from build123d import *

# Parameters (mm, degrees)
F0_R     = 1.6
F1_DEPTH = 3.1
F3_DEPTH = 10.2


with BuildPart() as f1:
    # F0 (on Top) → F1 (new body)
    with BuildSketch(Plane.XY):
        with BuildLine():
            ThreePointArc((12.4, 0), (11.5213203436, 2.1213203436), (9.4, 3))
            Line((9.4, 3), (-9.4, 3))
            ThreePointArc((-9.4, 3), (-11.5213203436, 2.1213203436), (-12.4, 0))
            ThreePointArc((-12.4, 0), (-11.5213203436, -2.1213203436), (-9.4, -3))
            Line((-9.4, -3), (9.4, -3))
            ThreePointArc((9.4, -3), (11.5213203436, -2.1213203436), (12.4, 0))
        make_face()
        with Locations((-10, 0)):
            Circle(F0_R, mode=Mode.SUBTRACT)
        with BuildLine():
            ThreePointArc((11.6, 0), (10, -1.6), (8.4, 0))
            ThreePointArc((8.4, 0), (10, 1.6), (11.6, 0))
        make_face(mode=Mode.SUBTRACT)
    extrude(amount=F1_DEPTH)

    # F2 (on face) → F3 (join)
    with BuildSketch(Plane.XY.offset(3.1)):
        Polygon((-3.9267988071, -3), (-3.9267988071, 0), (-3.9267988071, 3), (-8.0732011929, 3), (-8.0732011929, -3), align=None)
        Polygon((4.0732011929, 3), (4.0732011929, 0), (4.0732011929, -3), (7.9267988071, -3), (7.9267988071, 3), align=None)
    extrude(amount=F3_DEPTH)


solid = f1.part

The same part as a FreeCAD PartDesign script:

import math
import FreeCAD as App
import Part
import Sketcher

V = App.Vector
Q = App.Units.Quantity

doc = App.newDocument("Part")
body = doc.addObject("PartDesign::Body", "Body")

sketch1 = body.newObject("Sketcher::SketchObject", "Sketch")
sketch1.AttachmentSupport = (doc.getObject("XY_Plane"), [""])
sketch1.MapMode = "FlatFace"
sketch1.addGeometry([
    Part.ArcOfCircle(Part.Circle(V(9.4, 0, 0), V(0, 0, 1), 3), math.radians(0), math.radians(90)),
    Part.LineSegment(V(9.4, 3, 0), V(-9.4, 3, 0)),
    Part.ArcOfCircle(Part.Circle(V(-9.4, 0, 0), V(0, 0, 1), 3), math.radians(90), math.radians(180)),
    Part.ArcOfCircle(Part.Circle(V(-9.4, 0, 0), V(0, 0, 1), 3), math.radians(180), math.radians(270)),
    Part.LineSegment(V(-9.4, -3, 0), V(9.4, -3, 0)),
    Part.ArcOfCircle(Part.Circle(V(9.4, 0, 0), V(0, 0, 1), 3), math.radians(-90), math.radians(0)),
    Part.Circle(V(10, 0, 0), V(0, 0, 1), 1.6),
    Part.Circle(V(-10, 0, 0), V(0, 0, 1), 1.6),
], False)
sketch1.addConstraint([
    Sketcher.Constraint("Tangent", 0, 2, 1, 1),
    Sketcher.Constraint("Tangent", 1, 2, 2, 1),
    Sketcher.Constraint("Tangent", 2, 2, 3, 1),
    Sketcher.Constraint("Tangent", 3, 2, 4, 1),
    Sketcher.Constraint("Tangent", 4, 2, 5, 1),
    Sketcher.Constraint("Tangent", 5, 2, 0, 1),
    Sketcher.Constraint("Horizontal", 1),
    Sketcher.Constraint("Horizontal", 4),
    Sketcher.Constraint("Equal", 0, 2),
    Sketcher.Constraint("Equal", 2, 3),
    Sketcher.Constraint("Equal", 6, 7),
    Sketcher.Constraint("Symmetric", 0, 3, 2, 3, -1, 1),
    Sketcher.Constraint("Symmetric", 6, 3, 7, 3, -1, 1),
    Sketcher.Constraint("PointOnObject", 6, 3, -1),
    Sketcher.Constraint("PointOnObject", 2, 2, -1),
    Sketcher.Constraint("PointOnObject", 5, 2, -1),
    Sketcher.Constraint("Radius", 0, Q("3 mm")),
    Sketcher.Constraint("Diameter", 6, Q("3.2 mm")),
    Sketcher.Constraint("DistanceX", 1, 2, 1, 1, Q("18.8 mm")),
    Sketcher.Constraint("DistanceX", -1, 1, 6, 3, Q("10 mm")),
])
pad1 = body.newObject("PartDesign::Pad", "Pad")
pad1.Profile = sketch1
pad1.Length = 3.1

sketch2 = body.newObject("Sketcher::SketchObject", "Sketch001")
sketch2.AttachmentSupport = (doc.getObject("XY_Plane"), [""])
sketch2.MapMode = "FlatFace"
sketch2.AttachmentOffset = App.Placement(V(0, 0, 3.1), App.Rotation())
sketch2.addGeometry([
    Part.LineSegment(V(-3.9, -3, 0), V(-3.9, 3, 0)),
    Part.LineSegment(V(-3.9, 3, 0), V(-8.1, 3, 0)),
    Part.LineSegment(V(-8.1, 3, 0), V(-8.1, -3, 0)),
    Part.LineSegment(V(-8.1, -3, 0), V(-3.9, -3, 0)),
    Part.LineSegment(V(4.1, 3, 0), V(4.1, -3, 0)),
    Part.LineSegment(V(4.1, -3, 0), V(7.9, -3, 0)),
    Part.LineSegment(V(7.9, -3, 0), V(7.9, 3, 0)),
    Part.LineSegment(V(7.9, 3, 0), V(4.1, 3, 0)),
], False)
sketch2.addConstraint([
    Sketcher.Constraint("Coincident", 0, 2, 1, 1),
    Sketcher.Constraint("Coincident", 1, 2, 2, 1),
    Sketcher.Constraint("Coincident", 2, 2, 3, 1),
    Sketcher.Constraint("Coincident", 3, 2, 0, 1),
    Sketcher.Constraint("Coincident", 4, 2, 5, 1),
    Sketcher.Constraint("Coincident", 5, 2, 6, 1),
    Sketcher.Constraint("Coincident", 6, 2, 7, 1),
    Sketcher.Constraint("Coincident", 7, 2, 4, 1),
    Sketcher.Constraint("Vertical", 0),
    Sketcher.Constraint("Horizontal", 1),
    Sketcher.Constraint("Vertical", 2),
    Sketcher.Constraint("Horizontal", 3),
    Sketcher.Constraint("Vertical", 4),
    Sketcher.Constraint("Horizontal", 5),
    Sketcher.Constraint("Vertical", 6),
    Sketcher.Constraint("Horizontal", 7),
    Sketcher.Constraint("Horizontal", 3, 2, 4, 2),
    Sketcher.Constraint("Horizontal", 1, 2, 6, 2),
    Sketcher.Constraint("DistanceY", 0, 1, 0, 2, Q("6 mm")),
    Sketcher.Constraint("DistanceY", -1, 1, 0, 2, Q("3 mm")),
    Sketcher.Constraint("DistanceX", 3, 2, 4, 2, Q("8 mm")),
    Sketcher.Constraint("DistanceX", 2, 2, 5, 2, Q("16 mm")),
    Sketcher.Constraint("DistanceX", 0, 2, -1, 1, Q("3.926799 mm")),
    Sketcher.Constraint("DistanceX", 1, 2, -1, 1, Q("8.073201 mm")),
])
pad2 = body.newObject("PartDesign::Pad", "Pad001")
pad2.Profile = sketch2
pad2.Length = 10.2

doc.recompute()
